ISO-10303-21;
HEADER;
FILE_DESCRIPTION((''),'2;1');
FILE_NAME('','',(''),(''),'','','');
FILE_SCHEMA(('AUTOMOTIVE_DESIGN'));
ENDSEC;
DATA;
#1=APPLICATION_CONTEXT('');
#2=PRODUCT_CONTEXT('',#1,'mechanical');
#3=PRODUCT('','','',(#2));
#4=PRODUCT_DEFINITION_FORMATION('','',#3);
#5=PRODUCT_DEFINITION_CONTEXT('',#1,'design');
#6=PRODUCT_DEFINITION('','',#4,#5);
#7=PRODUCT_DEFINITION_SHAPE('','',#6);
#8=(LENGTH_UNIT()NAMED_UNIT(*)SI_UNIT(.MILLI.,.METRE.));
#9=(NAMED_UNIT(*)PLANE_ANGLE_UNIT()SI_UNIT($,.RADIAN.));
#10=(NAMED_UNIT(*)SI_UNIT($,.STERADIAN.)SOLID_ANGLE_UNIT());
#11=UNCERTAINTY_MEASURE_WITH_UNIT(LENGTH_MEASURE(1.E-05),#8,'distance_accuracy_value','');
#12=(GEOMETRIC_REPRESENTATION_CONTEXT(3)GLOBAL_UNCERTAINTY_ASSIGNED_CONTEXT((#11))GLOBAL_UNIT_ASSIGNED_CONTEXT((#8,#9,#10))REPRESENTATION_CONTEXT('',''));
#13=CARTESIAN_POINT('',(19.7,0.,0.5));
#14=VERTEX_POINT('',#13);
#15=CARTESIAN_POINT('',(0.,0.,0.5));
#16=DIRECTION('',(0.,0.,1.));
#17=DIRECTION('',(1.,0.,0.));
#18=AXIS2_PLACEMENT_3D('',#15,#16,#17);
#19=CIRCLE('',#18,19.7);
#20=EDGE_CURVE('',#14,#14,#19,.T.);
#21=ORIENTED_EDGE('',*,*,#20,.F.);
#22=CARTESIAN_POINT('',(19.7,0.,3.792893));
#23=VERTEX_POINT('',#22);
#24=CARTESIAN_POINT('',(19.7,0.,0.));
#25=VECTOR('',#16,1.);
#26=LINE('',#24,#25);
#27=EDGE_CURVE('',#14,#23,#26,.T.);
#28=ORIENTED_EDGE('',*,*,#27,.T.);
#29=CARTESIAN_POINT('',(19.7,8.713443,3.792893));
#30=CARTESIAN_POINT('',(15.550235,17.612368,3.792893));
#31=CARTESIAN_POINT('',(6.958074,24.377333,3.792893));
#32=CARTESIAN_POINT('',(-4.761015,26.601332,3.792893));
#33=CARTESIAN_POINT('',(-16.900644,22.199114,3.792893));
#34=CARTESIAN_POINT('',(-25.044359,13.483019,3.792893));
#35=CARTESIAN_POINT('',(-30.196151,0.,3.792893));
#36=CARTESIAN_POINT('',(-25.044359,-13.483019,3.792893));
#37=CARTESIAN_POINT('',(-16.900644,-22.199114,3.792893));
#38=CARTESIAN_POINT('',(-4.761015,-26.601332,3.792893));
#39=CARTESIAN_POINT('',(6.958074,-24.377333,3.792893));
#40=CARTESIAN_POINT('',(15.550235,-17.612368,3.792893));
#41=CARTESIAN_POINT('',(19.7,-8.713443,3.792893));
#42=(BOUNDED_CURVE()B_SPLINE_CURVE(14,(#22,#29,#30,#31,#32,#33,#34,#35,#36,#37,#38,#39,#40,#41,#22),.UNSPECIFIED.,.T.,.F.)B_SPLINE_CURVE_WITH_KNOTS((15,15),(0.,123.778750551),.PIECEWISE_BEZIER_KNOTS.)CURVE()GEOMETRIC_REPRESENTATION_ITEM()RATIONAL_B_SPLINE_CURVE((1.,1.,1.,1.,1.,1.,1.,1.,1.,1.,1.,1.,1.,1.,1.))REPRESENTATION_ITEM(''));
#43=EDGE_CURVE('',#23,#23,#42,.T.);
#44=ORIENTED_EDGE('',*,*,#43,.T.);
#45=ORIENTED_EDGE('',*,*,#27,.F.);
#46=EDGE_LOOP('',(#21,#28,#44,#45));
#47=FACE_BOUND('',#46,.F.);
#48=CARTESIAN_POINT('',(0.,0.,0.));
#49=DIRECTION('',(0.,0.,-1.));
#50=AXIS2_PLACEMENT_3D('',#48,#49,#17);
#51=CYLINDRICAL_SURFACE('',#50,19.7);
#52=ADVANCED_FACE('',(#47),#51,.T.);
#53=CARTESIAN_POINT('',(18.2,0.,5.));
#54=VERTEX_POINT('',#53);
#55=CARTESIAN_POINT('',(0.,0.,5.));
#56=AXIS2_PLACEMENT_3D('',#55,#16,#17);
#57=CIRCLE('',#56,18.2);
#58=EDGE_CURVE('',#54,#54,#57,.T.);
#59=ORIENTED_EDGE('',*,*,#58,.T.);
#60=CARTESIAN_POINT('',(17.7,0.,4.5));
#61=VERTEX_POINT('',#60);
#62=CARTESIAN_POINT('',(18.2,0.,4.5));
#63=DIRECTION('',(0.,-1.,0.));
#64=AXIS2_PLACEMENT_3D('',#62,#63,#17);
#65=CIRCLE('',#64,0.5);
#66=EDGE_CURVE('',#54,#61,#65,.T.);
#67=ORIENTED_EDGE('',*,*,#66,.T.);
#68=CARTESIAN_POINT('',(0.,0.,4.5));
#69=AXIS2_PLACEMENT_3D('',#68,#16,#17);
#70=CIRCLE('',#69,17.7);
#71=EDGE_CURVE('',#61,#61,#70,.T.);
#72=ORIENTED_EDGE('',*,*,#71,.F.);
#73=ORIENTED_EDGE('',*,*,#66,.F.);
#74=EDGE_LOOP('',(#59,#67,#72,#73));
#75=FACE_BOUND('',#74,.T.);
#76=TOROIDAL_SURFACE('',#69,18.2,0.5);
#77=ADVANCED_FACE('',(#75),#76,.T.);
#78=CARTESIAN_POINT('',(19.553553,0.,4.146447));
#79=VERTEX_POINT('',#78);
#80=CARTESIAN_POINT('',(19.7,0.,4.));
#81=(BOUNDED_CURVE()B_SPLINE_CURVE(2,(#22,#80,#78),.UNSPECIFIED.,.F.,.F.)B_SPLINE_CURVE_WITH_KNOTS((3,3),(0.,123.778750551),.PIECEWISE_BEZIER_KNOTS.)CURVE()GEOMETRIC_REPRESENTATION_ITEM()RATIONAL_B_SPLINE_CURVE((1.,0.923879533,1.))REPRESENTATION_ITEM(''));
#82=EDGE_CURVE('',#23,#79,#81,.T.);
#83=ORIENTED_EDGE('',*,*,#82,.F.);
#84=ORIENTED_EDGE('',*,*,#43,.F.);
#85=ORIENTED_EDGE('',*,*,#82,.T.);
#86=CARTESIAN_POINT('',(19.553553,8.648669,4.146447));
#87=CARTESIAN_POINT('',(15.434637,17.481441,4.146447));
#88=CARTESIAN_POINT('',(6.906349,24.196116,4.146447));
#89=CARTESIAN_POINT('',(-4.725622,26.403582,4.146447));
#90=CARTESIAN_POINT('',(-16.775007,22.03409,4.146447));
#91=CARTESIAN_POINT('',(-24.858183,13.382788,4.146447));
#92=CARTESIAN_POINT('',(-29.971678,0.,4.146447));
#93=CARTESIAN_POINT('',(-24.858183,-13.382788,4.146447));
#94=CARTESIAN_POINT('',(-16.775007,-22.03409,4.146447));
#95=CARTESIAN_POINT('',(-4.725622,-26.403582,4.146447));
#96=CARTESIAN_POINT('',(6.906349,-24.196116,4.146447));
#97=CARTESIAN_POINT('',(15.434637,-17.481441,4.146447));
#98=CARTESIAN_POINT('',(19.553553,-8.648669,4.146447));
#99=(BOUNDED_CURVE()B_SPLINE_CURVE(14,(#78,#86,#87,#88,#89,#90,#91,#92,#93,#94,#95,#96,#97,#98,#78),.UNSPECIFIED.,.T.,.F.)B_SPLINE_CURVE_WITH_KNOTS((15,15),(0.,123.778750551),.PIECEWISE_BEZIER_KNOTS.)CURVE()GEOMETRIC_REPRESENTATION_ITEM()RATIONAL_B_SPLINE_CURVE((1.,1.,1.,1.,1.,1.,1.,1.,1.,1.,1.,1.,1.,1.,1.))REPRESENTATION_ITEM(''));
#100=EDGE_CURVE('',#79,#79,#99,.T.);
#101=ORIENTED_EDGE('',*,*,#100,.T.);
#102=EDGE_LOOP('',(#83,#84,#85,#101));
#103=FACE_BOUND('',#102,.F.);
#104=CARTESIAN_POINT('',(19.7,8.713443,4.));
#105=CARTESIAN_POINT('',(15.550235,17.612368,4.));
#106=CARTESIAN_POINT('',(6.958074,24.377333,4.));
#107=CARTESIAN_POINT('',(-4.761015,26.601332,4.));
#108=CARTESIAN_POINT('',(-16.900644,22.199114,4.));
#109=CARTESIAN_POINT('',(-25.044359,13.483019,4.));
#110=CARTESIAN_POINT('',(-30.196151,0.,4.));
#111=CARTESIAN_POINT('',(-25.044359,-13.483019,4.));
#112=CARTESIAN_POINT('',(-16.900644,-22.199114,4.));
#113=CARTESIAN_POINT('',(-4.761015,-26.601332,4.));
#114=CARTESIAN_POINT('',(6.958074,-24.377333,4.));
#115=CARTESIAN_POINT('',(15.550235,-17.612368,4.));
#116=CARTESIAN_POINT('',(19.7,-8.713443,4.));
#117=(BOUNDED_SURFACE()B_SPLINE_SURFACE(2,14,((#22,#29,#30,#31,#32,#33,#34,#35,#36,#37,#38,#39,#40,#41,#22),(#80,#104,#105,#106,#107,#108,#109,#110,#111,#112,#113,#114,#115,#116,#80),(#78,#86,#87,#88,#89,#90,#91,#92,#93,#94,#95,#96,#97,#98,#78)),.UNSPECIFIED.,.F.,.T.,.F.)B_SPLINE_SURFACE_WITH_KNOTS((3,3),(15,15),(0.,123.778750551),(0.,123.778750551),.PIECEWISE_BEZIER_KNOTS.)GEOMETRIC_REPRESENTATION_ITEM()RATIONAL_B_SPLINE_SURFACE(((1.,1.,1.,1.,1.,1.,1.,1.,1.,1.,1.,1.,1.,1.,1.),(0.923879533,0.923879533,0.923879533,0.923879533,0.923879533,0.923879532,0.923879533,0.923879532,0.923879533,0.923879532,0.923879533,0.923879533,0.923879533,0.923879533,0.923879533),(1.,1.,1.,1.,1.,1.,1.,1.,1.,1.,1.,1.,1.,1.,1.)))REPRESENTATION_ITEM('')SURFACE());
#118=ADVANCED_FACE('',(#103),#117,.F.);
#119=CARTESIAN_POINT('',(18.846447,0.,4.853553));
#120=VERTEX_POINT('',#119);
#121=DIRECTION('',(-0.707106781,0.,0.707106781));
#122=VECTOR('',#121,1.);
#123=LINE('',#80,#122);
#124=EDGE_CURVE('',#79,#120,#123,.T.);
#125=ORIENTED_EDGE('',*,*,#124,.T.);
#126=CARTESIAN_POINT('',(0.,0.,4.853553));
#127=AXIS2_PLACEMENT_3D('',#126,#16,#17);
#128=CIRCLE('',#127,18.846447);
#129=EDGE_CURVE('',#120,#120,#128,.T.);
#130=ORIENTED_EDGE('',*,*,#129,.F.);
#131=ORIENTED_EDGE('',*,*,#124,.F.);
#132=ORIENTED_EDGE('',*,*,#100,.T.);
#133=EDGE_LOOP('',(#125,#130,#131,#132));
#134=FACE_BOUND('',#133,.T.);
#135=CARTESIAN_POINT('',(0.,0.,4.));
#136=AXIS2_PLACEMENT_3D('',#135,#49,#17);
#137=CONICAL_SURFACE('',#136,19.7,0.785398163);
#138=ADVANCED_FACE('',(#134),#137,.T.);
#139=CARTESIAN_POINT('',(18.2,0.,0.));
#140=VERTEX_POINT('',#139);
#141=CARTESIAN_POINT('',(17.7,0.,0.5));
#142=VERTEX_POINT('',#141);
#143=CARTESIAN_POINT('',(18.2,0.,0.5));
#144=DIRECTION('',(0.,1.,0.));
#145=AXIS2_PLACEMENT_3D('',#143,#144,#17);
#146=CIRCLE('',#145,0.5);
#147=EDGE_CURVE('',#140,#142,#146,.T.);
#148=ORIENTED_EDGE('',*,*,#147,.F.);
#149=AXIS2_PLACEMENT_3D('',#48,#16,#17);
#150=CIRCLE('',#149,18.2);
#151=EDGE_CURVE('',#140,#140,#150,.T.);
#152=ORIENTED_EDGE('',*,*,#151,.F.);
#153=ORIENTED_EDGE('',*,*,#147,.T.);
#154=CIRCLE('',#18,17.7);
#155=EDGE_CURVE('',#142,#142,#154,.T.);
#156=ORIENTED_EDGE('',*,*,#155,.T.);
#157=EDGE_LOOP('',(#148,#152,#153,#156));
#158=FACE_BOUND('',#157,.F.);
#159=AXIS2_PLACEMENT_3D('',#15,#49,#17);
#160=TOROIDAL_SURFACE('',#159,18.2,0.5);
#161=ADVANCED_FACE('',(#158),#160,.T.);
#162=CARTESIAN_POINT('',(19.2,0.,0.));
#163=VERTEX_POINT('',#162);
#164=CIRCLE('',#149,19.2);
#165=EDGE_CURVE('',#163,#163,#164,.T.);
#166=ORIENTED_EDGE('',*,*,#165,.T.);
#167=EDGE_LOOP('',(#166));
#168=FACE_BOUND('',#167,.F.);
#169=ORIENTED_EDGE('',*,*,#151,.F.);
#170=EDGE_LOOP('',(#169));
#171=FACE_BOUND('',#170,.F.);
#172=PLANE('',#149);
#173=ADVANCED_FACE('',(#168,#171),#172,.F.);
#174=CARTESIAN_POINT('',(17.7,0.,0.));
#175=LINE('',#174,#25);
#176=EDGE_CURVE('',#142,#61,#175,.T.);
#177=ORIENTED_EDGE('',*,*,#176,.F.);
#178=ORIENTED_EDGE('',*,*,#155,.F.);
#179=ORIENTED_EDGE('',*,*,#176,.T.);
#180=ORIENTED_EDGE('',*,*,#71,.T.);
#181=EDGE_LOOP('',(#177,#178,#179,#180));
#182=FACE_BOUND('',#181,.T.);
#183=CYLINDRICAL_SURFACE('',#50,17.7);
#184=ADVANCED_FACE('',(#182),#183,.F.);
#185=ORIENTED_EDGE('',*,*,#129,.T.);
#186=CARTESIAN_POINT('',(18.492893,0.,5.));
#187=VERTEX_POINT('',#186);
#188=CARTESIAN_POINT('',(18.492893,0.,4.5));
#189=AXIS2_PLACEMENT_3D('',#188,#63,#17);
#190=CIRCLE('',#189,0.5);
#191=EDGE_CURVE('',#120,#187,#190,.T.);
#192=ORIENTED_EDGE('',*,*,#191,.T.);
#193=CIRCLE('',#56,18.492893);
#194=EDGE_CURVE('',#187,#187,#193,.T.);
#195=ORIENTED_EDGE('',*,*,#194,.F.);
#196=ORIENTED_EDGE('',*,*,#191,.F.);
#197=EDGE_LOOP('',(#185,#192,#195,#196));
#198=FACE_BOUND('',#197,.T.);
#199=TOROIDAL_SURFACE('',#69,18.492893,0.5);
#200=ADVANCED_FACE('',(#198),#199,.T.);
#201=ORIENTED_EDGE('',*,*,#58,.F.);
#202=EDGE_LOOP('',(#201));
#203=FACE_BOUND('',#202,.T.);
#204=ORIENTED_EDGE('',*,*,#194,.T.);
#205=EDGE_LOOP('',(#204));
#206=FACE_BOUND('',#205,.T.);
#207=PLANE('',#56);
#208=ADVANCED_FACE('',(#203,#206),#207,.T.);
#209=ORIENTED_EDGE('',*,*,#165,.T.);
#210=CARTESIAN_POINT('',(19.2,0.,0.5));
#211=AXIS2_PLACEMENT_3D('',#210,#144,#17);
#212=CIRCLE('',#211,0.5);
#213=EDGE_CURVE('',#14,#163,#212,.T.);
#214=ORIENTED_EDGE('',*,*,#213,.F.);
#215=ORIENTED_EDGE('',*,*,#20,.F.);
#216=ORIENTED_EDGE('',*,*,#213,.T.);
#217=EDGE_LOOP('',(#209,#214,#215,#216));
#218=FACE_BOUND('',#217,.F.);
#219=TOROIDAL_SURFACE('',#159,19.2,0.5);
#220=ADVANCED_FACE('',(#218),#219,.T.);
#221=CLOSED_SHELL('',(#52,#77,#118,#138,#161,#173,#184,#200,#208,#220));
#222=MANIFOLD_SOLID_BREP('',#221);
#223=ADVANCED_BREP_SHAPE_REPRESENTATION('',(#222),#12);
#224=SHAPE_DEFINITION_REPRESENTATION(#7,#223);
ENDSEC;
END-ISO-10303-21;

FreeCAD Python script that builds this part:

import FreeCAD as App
import Part
import Sketcher


def edges_at(feature, points):
    """Names of the edges that pass closest to the given points."""
    edges = feature.Shape.Edges
    near = lambda p: min(range(len(edges)), key=lambda i: edges[i].distToShape(Part.Vertex(*p))[0])
    return sorted({f"Edge{near(p) + 1}" for p in points})


def faces_at(feature, points):
    """Names of the faces that lie closest to the given points."""
    faces = feature.Shape.Faces
    near = lambda p: min(range(len(faces)), key=lambda i: faces[i].distToShape(Part.Vertex(*p))[0])
    return sorted({f"Face{near(p) + 1}" for p in points})

doc = App.newDocument("Part")
body = doc.addObject("PartDesign::Body", "Body")

sketch1 = body.newObject("Sketcher::SketchObject", "Sketch")
sketch1.AttachmentSupport = (doc.getObject("XY_Plane"), [""])
sketch1.MapMode = "FlatFace"
sketch1.addGeometry(Part.Circle(App.Vector(0, 0, 0), App.Vector(0, 0, 1), 19.7), False)
sketch1.addConstraint(Sketcher.Constraint("Coincident", 0, 3, -1, 1))
sketch1.addConstraint(Sketcher.Constraint("Diameter", 0, 39.4))
pad1 = body.newObject("PartDesign::Pad", "Pad")
pad1.Profile = sketch1
pad1.Length = 5
doc.recompute()

thickness = body.newObject("PartDesign::Thickness", "Thickness")
thickness.Base = (pad1, faces_at(pad1, [(0, 0, 5), (0, 0, 0)]))
thickness.Value = 2
thickness.Reversed = True
thickness.Join = "Arc"
doc.recompute()

chamfer = body.newObject("PartDesign::Chamfer", "Chamfer")
chamfer.Base = (thickness, edges_at(thickness, [(-19.7, 0, 5)]))
chamfer.Size = 1
doc.recompute()

fillet = body.newObject("PartDesign::Fillet", "Fillet")
fillet.Base = (chamfer, ["Edge1"])
fillet.UseAllEdges = True
fillet.Radius = 0.5

doc.recompute()
